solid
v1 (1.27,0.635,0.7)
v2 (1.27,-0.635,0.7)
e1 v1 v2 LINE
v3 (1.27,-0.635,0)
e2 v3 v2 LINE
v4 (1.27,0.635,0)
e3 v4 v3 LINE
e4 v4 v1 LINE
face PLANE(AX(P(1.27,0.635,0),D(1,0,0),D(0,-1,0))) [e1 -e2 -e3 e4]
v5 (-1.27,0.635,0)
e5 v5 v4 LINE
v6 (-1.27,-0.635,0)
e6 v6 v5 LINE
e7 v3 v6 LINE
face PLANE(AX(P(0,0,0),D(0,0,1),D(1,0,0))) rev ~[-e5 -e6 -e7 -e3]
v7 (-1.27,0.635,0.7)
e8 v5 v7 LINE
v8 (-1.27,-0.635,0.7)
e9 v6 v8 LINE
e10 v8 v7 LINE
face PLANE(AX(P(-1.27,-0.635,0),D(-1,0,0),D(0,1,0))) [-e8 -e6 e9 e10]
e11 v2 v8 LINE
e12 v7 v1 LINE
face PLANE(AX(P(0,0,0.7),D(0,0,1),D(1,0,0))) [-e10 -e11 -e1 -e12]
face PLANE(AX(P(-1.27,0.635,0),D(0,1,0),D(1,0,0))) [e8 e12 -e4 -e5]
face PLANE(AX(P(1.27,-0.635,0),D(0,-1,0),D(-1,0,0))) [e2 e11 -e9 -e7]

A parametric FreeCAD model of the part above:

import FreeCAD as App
import Part
import Sketcher

V = App.Vector
Q = App.Units.Quantity


def add_polygon(sketch, points):
    """Adds a closed chain of lines whose ends are joined by coincident constraints."""
    first, n = sketch.GeometryCount, len(points)
    for a, b in zip(points, points[1:] + points[:1]):
        sketch.addGeometry(Part.LineSegment(App.Vector(*a, 0), App.Vector(*b, 0)), False)
    for i in range(n):
        sketch.addConstraint(Sketcher.Constraint("Coincident", first + i, 2, first + (i + 1) % n, 1))

doc = App.newDocument("Part")
body = doc.addObject("PartDesign::Body", "Body")

# Sketch on XY plane
sketch1 = body.newObject("Sketcher::SketchObject", "Sketch")
sketch1.AttachmentSupport = (doc.getObject("XY_Plane"), [""])
sketch1.MapMode = "FlatFace"
add_polygon(sketch1, [(1.27, 0.635), (-1.27, 0.635), (-1.27, -0.635), (1.27, -0.635)])  # lines 0-3
sketch1.addConstraint([
    Sketcher.Constraint("Horizontal", 0),
    Sketcher.Constraint("Vertical", 1),
    Sketcher.Constraint("Horizontal", 2),
    Sketcher.Constraint("Vertical", 3),
    Sketcher.Constraint("Symmetric", 0, 2, 2, 2, -1, 1),
    Sketcher.Constraint("DistanceX", 0, 2, 0, 1, Q("0.1 in")),
    Sketcher.Constraint("DistanceY", 1, 2, 1, 1, Q("0.05 in")),
])
pad1 = body.newObject("PartDesign::Pad", "Pad")
pad1.Profile = sketch1
pad1.Length = 0.7

doc.recompute()
